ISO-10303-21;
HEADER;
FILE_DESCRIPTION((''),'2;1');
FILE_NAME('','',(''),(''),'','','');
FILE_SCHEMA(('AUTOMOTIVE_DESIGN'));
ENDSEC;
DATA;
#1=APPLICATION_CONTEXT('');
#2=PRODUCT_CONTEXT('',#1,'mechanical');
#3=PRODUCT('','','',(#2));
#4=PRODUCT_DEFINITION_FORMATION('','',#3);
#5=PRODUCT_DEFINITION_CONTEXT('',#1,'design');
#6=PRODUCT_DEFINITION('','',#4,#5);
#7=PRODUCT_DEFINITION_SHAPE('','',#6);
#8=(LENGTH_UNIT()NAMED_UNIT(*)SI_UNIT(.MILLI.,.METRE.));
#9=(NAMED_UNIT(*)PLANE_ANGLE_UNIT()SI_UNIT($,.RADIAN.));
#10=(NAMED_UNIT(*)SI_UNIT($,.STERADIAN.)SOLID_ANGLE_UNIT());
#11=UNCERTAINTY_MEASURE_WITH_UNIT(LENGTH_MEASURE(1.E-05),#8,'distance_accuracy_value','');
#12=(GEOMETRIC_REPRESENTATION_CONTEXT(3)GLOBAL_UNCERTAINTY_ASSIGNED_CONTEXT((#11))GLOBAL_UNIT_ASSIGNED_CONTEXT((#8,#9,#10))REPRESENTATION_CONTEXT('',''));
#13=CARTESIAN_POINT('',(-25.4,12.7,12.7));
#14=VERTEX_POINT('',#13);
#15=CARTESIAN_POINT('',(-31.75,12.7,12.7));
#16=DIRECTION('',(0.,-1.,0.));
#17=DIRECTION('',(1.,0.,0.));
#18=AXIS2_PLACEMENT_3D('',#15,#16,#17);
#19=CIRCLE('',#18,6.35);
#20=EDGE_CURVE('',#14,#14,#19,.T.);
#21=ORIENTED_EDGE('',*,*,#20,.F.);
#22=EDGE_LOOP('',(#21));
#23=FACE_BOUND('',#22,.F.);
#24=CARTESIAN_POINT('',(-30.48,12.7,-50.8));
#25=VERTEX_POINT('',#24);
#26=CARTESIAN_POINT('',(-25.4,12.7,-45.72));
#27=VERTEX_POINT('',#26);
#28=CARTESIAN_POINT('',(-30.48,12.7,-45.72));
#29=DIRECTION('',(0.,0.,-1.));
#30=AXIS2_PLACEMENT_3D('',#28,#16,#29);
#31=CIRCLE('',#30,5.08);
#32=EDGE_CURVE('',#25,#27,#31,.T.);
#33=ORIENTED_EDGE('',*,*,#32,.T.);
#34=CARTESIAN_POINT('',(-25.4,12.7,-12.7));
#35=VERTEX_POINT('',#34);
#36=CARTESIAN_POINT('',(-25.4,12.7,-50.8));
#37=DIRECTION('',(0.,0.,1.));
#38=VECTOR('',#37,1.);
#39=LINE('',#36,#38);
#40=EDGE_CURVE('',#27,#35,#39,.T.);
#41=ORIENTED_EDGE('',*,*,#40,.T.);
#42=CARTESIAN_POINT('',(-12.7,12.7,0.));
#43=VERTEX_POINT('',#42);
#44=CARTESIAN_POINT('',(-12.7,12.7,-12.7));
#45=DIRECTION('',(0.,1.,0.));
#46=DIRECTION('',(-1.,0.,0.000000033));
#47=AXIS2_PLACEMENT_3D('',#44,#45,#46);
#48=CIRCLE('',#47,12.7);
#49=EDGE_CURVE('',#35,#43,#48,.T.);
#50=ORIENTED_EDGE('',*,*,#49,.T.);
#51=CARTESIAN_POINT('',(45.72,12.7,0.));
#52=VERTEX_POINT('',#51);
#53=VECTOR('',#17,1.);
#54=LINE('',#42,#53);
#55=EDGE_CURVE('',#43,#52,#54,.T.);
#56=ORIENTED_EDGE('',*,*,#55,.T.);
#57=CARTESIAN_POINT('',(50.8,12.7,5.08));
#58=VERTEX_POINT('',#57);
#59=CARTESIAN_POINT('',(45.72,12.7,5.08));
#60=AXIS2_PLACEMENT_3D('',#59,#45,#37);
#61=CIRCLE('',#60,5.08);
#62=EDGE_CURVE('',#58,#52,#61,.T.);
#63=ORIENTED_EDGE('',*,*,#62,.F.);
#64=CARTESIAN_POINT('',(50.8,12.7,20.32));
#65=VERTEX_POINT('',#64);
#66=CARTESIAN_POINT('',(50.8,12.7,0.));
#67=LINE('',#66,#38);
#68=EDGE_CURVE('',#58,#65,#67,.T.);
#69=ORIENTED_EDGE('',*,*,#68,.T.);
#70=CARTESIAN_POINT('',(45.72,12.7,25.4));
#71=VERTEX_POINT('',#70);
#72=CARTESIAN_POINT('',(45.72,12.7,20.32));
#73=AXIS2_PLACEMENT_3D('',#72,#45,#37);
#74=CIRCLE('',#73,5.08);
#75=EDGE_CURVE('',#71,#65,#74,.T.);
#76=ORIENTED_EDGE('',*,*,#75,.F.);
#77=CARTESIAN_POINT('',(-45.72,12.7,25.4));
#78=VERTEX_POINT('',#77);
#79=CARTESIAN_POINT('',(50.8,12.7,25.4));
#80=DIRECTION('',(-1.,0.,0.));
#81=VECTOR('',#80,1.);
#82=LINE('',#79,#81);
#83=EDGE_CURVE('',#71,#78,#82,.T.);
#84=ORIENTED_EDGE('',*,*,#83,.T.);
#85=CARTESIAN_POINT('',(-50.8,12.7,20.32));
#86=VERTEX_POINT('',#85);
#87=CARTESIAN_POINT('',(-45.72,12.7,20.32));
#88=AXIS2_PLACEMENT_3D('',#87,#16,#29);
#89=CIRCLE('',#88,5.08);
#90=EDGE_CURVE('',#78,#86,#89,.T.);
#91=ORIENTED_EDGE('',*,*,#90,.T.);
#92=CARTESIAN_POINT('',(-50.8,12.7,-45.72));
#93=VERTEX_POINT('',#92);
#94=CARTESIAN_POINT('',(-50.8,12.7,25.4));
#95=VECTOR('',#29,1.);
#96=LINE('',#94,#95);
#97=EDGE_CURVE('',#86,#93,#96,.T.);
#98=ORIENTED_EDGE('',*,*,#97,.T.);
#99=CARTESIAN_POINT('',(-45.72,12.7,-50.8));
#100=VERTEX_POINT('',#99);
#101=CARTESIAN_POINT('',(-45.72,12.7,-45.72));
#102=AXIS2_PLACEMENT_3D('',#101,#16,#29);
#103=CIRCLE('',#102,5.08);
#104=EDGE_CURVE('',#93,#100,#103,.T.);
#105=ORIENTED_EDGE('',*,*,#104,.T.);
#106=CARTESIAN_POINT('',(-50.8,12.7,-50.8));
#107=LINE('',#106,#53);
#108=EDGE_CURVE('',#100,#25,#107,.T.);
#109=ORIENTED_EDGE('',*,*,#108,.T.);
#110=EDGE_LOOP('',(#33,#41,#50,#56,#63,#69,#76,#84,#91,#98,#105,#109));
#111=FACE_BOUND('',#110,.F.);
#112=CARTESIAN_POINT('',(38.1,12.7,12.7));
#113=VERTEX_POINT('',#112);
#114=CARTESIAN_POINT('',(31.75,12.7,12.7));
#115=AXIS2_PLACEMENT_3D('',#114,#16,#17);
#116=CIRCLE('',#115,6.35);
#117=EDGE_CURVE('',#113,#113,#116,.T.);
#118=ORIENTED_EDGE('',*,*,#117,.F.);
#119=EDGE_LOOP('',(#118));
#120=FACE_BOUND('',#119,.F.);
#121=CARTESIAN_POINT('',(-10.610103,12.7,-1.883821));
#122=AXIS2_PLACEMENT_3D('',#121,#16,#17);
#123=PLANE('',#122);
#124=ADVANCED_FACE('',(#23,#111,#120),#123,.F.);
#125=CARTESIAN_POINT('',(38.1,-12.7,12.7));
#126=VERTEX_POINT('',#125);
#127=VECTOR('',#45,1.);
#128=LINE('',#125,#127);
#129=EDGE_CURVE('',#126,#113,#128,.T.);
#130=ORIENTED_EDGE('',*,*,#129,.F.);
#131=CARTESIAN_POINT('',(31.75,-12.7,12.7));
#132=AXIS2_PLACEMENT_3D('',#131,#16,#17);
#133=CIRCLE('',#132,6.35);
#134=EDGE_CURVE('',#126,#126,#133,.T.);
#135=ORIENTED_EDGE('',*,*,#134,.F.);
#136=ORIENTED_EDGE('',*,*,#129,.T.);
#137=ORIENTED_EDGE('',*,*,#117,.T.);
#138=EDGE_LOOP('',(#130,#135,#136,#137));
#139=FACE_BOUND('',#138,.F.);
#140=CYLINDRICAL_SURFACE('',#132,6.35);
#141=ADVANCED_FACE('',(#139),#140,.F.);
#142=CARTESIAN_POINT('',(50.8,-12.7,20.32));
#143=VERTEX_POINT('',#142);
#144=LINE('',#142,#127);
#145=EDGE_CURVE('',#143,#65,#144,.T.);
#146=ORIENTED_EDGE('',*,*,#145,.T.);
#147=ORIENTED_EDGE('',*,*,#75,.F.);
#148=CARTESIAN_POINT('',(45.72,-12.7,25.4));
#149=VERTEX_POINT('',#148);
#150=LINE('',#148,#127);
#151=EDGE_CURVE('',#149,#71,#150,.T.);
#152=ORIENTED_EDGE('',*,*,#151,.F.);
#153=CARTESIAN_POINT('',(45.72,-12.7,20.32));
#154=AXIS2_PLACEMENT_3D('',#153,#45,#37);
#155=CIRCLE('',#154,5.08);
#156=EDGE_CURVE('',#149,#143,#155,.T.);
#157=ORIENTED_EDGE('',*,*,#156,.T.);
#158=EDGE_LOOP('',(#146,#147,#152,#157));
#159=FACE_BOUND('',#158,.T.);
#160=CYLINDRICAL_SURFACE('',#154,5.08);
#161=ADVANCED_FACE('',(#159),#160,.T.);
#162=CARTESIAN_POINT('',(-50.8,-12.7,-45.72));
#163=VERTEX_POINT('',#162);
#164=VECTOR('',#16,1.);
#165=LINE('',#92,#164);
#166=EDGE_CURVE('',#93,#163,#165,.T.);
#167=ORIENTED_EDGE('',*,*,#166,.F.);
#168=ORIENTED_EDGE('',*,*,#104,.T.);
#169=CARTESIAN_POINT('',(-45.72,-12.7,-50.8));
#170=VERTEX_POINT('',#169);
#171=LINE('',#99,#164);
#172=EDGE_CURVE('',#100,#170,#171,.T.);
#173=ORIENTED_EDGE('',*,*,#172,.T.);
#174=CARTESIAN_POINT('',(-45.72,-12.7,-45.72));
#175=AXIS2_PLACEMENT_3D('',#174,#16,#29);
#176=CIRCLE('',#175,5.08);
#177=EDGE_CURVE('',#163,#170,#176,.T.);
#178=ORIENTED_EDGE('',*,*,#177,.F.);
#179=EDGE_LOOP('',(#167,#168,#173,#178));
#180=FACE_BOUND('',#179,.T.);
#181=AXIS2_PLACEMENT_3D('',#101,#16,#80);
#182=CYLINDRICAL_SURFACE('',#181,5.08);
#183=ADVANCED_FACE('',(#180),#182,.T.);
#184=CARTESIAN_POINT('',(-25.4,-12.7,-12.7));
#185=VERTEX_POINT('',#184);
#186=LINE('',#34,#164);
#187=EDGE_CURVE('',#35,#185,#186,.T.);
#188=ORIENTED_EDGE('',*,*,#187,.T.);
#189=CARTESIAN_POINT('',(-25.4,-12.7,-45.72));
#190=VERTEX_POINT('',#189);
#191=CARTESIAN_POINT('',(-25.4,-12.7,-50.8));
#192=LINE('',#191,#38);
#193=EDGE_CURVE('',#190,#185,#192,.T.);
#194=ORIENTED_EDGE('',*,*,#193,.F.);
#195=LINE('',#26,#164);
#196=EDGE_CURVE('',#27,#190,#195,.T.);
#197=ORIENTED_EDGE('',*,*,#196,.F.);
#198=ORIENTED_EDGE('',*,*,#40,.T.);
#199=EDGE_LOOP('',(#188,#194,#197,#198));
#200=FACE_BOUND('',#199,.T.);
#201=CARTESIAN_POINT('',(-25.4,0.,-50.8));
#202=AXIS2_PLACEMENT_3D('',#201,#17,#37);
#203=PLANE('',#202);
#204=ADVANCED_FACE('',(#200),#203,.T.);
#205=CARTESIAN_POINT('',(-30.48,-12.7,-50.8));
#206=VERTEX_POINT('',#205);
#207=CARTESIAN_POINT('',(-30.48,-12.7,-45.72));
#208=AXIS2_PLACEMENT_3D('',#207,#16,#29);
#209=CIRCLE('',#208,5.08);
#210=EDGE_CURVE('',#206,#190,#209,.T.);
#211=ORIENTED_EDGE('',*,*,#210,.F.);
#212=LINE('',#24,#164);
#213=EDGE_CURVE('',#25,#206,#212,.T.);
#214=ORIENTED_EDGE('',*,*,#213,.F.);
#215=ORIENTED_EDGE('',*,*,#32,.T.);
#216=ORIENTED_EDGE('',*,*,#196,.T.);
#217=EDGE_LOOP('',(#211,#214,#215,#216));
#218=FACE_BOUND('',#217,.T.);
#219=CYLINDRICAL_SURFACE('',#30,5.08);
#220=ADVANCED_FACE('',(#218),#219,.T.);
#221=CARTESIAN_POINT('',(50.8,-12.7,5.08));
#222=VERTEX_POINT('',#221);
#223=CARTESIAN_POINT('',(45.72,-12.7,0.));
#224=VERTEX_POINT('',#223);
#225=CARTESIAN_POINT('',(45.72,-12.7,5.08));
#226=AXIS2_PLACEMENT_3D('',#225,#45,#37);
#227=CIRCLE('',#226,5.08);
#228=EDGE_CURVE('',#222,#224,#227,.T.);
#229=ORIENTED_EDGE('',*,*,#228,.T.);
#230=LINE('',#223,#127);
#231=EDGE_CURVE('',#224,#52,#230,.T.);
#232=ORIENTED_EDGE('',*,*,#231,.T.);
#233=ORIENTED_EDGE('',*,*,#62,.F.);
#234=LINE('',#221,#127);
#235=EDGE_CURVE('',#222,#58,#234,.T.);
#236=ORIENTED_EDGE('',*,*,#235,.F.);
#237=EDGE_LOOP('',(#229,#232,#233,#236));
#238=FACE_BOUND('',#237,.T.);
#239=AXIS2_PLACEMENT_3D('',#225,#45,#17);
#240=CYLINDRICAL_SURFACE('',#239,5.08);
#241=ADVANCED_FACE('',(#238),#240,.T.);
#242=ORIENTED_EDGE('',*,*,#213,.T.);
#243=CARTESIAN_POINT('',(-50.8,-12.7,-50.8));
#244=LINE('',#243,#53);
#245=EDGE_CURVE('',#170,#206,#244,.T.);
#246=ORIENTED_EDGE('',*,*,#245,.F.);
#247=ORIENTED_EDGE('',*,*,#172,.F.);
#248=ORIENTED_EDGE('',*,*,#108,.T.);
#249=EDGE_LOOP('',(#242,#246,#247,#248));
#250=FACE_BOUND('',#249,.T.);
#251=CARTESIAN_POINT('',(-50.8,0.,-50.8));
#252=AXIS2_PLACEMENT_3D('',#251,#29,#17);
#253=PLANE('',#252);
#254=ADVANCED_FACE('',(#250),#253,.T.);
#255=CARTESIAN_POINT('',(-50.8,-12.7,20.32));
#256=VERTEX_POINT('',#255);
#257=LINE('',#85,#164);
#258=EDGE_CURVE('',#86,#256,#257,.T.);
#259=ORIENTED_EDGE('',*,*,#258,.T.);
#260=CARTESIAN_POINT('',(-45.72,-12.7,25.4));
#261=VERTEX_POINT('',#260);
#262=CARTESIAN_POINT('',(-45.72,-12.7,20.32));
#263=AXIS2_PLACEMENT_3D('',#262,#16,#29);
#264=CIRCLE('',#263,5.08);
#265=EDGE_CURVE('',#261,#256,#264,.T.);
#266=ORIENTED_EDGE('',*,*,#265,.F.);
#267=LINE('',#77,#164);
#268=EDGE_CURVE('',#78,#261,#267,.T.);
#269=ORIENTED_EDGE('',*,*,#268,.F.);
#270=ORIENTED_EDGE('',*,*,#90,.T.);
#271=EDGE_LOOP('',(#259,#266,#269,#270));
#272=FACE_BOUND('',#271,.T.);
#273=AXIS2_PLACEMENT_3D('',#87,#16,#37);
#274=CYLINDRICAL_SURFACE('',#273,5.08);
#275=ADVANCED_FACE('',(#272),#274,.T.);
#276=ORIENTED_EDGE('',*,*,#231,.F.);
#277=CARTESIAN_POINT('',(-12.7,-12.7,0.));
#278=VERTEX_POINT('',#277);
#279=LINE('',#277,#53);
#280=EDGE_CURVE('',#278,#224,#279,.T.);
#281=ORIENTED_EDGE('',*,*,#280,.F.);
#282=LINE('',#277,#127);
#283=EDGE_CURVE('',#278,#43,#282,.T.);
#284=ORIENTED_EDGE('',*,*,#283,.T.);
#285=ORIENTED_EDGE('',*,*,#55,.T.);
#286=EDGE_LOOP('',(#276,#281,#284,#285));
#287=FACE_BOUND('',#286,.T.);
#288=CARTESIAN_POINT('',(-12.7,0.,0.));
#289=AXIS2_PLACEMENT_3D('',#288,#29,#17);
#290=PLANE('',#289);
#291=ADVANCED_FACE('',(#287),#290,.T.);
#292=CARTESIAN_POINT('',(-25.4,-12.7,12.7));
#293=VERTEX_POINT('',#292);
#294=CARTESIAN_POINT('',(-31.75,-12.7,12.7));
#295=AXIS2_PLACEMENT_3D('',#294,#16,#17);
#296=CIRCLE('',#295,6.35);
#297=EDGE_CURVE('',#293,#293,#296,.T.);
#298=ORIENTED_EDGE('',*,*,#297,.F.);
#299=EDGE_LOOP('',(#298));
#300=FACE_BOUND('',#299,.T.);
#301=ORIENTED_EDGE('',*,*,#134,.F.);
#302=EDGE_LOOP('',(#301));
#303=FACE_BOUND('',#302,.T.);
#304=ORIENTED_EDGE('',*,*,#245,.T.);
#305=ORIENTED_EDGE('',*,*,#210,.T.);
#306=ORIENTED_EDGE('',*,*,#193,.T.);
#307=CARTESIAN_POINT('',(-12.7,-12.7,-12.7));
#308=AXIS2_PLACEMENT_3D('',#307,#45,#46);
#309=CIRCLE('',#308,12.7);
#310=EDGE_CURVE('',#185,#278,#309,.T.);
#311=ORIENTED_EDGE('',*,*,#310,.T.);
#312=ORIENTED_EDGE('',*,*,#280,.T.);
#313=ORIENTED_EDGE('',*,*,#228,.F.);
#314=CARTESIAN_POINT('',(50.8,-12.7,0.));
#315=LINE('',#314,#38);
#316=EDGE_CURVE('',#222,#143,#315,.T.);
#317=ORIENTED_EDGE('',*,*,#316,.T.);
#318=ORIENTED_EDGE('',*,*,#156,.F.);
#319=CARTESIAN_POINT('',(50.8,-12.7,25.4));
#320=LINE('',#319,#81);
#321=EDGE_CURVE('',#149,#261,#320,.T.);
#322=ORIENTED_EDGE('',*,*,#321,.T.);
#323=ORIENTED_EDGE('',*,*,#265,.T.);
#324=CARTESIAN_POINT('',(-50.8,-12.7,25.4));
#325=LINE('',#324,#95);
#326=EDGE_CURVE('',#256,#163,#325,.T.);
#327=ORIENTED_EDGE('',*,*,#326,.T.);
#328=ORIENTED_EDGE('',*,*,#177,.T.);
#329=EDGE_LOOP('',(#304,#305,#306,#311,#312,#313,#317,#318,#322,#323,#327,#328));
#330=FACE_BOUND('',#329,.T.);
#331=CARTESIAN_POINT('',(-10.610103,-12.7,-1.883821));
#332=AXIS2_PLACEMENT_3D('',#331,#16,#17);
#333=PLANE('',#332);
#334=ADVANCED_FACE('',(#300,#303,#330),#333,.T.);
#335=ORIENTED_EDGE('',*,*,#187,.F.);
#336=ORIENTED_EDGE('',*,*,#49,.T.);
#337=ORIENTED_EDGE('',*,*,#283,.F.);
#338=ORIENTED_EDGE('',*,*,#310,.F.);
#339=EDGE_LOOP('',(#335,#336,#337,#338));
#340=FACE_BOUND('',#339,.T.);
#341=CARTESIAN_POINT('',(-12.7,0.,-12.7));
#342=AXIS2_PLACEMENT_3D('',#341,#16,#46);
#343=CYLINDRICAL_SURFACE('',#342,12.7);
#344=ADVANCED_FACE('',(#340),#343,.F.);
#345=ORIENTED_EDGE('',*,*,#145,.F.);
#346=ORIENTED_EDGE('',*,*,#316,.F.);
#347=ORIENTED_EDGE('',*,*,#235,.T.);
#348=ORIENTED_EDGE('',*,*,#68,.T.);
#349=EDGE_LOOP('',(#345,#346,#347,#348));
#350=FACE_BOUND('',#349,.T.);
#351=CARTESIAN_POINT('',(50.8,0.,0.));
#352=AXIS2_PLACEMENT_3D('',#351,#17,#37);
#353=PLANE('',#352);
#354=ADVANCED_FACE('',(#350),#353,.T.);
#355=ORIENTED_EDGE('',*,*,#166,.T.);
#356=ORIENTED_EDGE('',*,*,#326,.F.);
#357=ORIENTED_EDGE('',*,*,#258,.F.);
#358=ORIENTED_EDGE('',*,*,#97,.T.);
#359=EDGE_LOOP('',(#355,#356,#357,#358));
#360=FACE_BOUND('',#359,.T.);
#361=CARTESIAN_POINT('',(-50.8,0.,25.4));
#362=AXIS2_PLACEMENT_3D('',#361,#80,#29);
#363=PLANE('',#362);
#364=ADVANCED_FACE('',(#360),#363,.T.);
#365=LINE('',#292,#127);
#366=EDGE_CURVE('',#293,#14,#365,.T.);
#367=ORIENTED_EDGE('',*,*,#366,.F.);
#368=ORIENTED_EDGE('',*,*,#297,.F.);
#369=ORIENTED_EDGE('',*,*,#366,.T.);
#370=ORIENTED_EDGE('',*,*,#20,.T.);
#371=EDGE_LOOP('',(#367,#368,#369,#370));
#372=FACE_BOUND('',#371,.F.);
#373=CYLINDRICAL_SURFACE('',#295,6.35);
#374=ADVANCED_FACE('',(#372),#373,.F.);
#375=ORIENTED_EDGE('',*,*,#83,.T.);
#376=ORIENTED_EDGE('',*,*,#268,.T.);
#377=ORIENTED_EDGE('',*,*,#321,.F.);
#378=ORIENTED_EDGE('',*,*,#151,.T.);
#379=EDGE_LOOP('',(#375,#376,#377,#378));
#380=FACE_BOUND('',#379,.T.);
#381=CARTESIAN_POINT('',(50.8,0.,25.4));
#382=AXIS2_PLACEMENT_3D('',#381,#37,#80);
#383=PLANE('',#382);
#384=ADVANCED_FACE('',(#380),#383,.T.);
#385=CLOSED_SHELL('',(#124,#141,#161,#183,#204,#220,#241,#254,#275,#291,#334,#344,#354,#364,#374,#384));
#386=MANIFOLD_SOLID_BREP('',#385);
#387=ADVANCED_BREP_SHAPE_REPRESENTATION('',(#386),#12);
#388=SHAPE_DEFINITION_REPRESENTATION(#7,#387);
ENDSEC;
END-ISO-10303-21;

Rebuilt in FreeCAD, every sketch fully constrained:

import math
import FreeCAD as App
import Part
import Sketcher
from FreeCAD import Vector
Q = App.Units.Quantity


def edges_at(feature, points):
    """Names of the edges that pass closest to the given points."""
    edges = feature.Shape.Edges
    near = lambda p: min(range(len(edges)), key=lambda i: edges[i].distToShape(Part.Vertex(*p))[0])
    return sorted({f"Edge{near(p) + 1}" for p in points})

doc = App.newDocument("Part")
body = doc.addObject("PartDesign::Body", "Body")

# Sketch on XZ plane
sketch1 = body.newObject("Sketcher::SketchObject", "Sketch")
sketch1.AttachmentSupport = (doc.getObject("XZ_Plane"), [""])
sketch1.MapMode = "FlatFace"
sketch1.addGeometry(Part.LineSegment(Vector(51, 25, 0), Vector(-51, 25, 0)), False)
sketch1.addGeometry(Part.LineSegment(Vector(-51, 25, 0), Vector(-51, -51, 0)), False)
sketch1.addGeometry(Part.LineSegment(Vector(-51, -51, 0), Vector(-25, -51, 0)), False)
sketch1.addGeometry(Part.LineSegment(Vector(-25, -51, 0), Vector(-25, -13, 0)), False)
sketch1.addGeometry(Part.ArcOfCircle(Part.Circle(Vector(-13, -13, 0), Vector(0, 0, 1), 13), math.radians(90), math.radians(180)), False)
sketch1.addGeometry(Part.LineSegment(Vector(-13, 0, 0), Vector(51, 0, 0)), False)
sketch1.addGeometry(Part.LineSegment(Vector(51, 0, 0), Vector(51, 25, 0)), False)
sketch1.addConstraint(Sketcher.Constraint("Coincident", 0, 2, 1, 1))
sketch1.addConstraint(Sketcher.Constraint("Coincident", 1, 2, 2, 1))
sketch1.addConstraint(Sketcher.Constraint("Coincident", 2, 2, 3, 1))
sketch1.addConstraint(Sketcher.Constraint("Tangent", 3, 2, 4, 2))
sketch1.addConstraint(Sketcher.Constraint("Tangent", 4, 1, 5, 1))
sketch1.addConstraint(Sketcher.Constraint("Coincident", 5, 2, 6, 1))
sketch1.addConstraint(Sketcher.Constraint("Coincident", 6, 2, 0, 1))
sketch1.addConstraint(Sketcher.Constraint("Horizontal", 0))
sketch1.addConstraint(Sketcher.Constraint("Vertical", 1))
sketch1.addConstraint(Sketcher.Constraint("Horizontal", 2))
sketch1.addConstraint(Sketcher.Constraint("Vertical", 3))
sketch1.addConstraint(Sketcher.Constraint("Horizontal", 5))
sketch1.addConstraint(Sketcher.Constraint("Vertical", 6))
sketch1.addConstraint(Sketcher.Constraint("PointOnObject", 4, 1, -1))
sketch1.addConstraint(Sketcher.Constraint("Equal", 2, 6))
sketch1.addConstraint(Sketcher.Constraint("Radius", 4, Q("0.5 in")))
sketch1.addConstraint(Sketcher.Constraint("DistanceX", 0, 2, 0, 1, Q("4 in")))
sketch1.addConstraint(Sketcher.Constraint("DistanceX", 2, 1, 2, 2, Q("1 in")))
sketch1.addConstraint(Sketcher.Constraint("DistanceY", 1, 2, 1, 1, Q("3 in")))
sketch1.addConstraint(Sketcher.Constraint("DistanceX", 0, 2, -1, 1, Q("2 in")))
pad1 = body.newObject("PartDesign::Pad", "Pad")
pad1.Profile = sketch1
pad1.Length = Q("1 in")
pad1.Midplane = True

# Sketch on XZ plane
sketch2 = body.newObject("Sketcher::SketchObject", "Sketch001")
sketch2.AttachmentSupport = (doc.getObject("XZ_Plane"), [""])
sketch2.MapMode = "FlatFace"
sketch2.AttachmentOffset = App.Placement(Vector(0, 0, 0.5 * 25.4), App.Rotation())
sketch2.addGeometry(Part.Circle(Vector(-32, 13, 0), Vector(0, 0, 1), 6), False)
sketch2.addGeometry(Part.Circle(Vector(32, 13, 0), Vector(0, 0, 1), 6), False)
sketch2.addConstraint(Sketcher.Constraint("Equal", 0, 1))
sketch2.addConstraint(Sketcher.Constraint("Symmetric", 0, 3, 1, 3, -2))
sketch2.addConstraint(Sketcher.Constraint("Diameter", 0, Q("0.5 in")))
sketch2.addConstraint(Sketcher.Constraint("DistanceY", -1, 1, 0, 3, Q("0.5 in")))
sketch2.addConstraint(Sketcher.Constraint("DistanceX", 0, 3, 1, 3, Q("2.5 in")))
pocket1 = body.newObject("PartDesign::Pocket", "Pocket")
pocket1.Profile = sketch2
pocket1.Type = "ThroughAll"
doc.recompute()

fillet = body.newObject("PartDesign::Fillet", "Fillet")
fillet.Base = (pocket1, edges_at(pocket1, [
    (50.8, 0, 25.4),
    (50.8, 0, 0),
    (-25.4, 0, -50.8),
    (-50.8, 0, 25.4),
    (-50.8, 0, -50.8),
]))
fillet.Radius = Q("0.2 in")

doc.recompute()
